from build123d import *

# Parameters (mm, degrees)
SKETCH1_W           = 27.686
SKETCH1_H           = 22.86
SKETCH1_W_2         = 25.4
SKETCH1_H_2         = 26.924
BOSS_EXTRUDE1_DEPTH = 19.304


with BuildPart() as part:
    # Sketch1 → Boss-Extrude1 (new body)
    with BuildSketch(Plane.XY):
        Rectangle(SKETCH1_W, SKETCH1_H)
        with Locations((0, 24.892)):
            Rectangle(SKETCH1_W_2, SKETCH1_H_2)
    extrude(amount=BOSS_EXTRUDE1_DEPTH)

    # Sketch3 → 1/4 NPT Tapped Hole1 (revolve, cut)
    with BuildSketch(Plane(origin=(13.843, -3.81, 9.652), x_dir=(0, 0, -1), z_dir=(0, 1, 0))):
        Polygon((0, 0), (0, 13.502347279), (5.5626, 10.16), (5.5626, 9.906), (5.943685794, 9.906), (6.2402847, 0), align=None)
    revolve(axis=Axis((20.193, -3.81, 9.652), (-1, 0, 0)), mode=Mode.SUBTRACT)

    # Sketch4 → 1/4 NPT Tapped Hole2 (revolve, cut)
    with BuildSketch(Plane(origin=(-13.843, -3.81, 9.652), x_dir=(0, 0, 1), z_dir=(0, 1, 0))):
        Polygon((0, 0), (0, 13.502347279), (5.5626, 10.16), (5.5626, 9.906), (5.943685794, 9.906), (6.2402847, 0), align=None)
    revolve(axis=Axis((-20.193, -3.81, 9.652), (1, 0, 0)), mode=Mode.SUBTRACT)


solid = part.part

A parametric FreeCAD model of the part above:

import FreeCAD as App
import Part
import Sketcher
from FreeCAD import Vector
Q = App.Units.Quantity

doc = App.newDocument("Part")
body = doc.addObject("PartDesign::Body", "Body")

sketch1 = body.newObject("Sketcher::SketchObject", "Sketch")
sketch1.AttachmentSupport = (doc.getObject("XY_Plane"), [""])
sketch1.MapMode = "FlatFace"
sketch1.addGeometry([
    Part.LineSegment(Vector(-13.8, 11.4, 0), Vector(-13.8, -11.4, 0)),
    Part.LineSegment(Vector(-13.8, -11.4, 0), Vector(13.8, -11.4, 0)),
    Part.LineSegment(Vector(13.8, -11.4, 0), Vector(13.8, 11.4, 0)),
    Part.LineSegment(Vector(13.8, 11.4, 0), Vector(12.7, 11.4, 0)),
    Part.LineSegment(Vector(12.7, 11.4, 0), Vector(12.7, 38.4, 0)),
    Part.LineSegment(Vector(12.7, 38.4, 0), Vector(-12.7, 38.4, 0)),
    Part.LineSegment(Vector(-12.7, 38.4, 0), Vector(-12.7, 11.4, 0)),
    Part.LineSegment(Vector(-12.7, 11.4, 0), Vector(-13.8, 11.4, 0)),
], False)
sketch1.addConstraint([
    Sketcher.Constraint("Coincident", 0, 2, 1, 1),
    Sketcher.Constraint("Coincident", 1, 2, 2, 1),
    Sketcher.Constraint("Coincident", 2, 2, 3, 1),
    Sketcher.Constraint("Coincident", 3, 2, 4, 1),
    Sketcher.Constraint("Coincident", 4, 2, 5, 1),
    Sketcher.Constraint("Coincident", 5, 2, 6, 1),
    Sketcher.Constraint("Coincident", 6, 2, 7, 1),
    Sketcher.Constraint("Coincident", 7, 2, 0, 1),
    Sketcher.Constraint("Vertical", 0),
    Sketcher.Constraint("Horizontal", 1),
    Sketcher.Constraint("Vertical", 2),
    Sketcher.Constraint("Horizontal", 3),
    Sketcher.Constraint("Vertical", 4),
    Sketcher.Constraint("Horizontal", 5),
    Sketcher.Constraint("Vertical", 6),
    Sketcher.Constraint("Horizontal", 7),
    Sketcher.Constraint("Symmetric", 0, 2, 2, 2, -1, 1),
    Sketcher.Constraint("Symmetric", 3, 2, 6, 2, -2),
    Sketcher.Constraint("DistanceX", 5, 2, 5, 1, Q("1 in")),
    Sketcher.Constraint("DistanceY", 0, 2, 0, 1, Q("0.9 in")),
    Sketcher.Constraint("DistanceX", 1, 1, 1, 2, Q("1.09 in")),
    Sketcher.Constraint("DistanceY", 4, 1, 4, 2, Q("1.06 in")),
])
pad1 = body.newObject("PartDesign::Pad", "Pad")
pad1.Profile = sketch1
pad1.Length = Q("0.76 in")

sketch2 = body.newObject("Sketcher::SketchObject", "Sketch001")
sketch2.AttachmentSupport = (doc.getObject("XZ_Plane"), [""])
sketch2.MapMode = "FlatFace"
sketch2.AttachmentOffset = App.Placement(Vector(0, 0, 0.15 * 25.4), App.Rotation())
sketch2.addGeometry([
    Part.LineSegment(Vector(0.34, 9.65, 0), Vector(13.84, 9.65, 0)),
    Part.LineSegment(Vector(13.84, 9.65, 0), Vector(13.84, 3.41, 0)),
    Part.LineSegment(Vector(13.84, 3.41, 0), Vector(3.94, 3.71, 0)),
    Part.LineSegment(Vector(3.94, 3.71, 0), Vector(3.94, 4.09, 0)),
    Part.LineSegment(Vector(3.94, 4.09, 0), Vector(3.68, 4.09, 0)),
    Part.LineSegment(Vector(3.68, 4.09, 0), Vector(0.34, 9.65, 0)),
], False)
sketch2.addGeometry(Part.LineSegment(Vector(13.84, 9.65, 0), Vector(0.34, 9.65, 0)), True)
sketch2.addConstraint([
    Sketcher.Constraint("Coincident", 0, 2, 1, 1),
    Sketcher.Constraint("Coincident", 1, 2, 2, 1),
    Sketcher.Constraint("Coincident", 2, 2, 3, 1),
    Sketcher.Constraint("Coincident", 3, 2, 4, 1),
    Sketcher.Constraint("Coincident", 4, 2, 5, 1),
    Sketcher.Constraint("Coincident", 5, 2, 0, 1),
    Sketcher.Constraint("Horizontal", 0),
    Sketcher.Constraint("Vertical", 1),
    Sketcher.Constraint("Vertical", 3),
    Sketcher.Constraint("Horizontal", 4),
    Sketcher.Constraint("Horizontal", 6),
    Sketcher.Constraint("Coincident", 6, 1, 0, 2),
    Sketcher.Constraint("Equal", 0, 6),
    Sketcher.Constraint("Angle", 5, Q("121 deg")),
    Sketcher.Constraint("DistanceX", 4, 2, 4, 1, Q("0.01 in")),
    Sketcher.Constraint("DistanceX", 4, 2, 1, 2, Q("0.4 in")),
    Sketcher.Constraint("DistanceY", -1, 1, 0, 2, Q("0.38 in")),
    Sketcher.Constraint("DistanceX", -1, 1, 0, 2, Q("0.545 in")),
    Sketcher.Constraint("DistanceY", -1, 1, 3, 2, Q("0.161 in")),
    Sketcher.Constraint("DistanceY", 1, 2, 2, 2, 0.296599),
    Sketcher.Constraint("DistanceY", 1, 2, 1, 1, 6.240285),
])
groove = body.newObject("PartDesign::Groove", "Groove")
groove.Profile = sketch2
groove.ReferenceAxis = (sketch2, ["Axis0"])
groove.Angle = 360

sketch3 = body.newObject("Sketcher::SketchObject", "Sketch002")
sketch3.AttachmentSupport = (doc.getObject("XZ_Plane"), [""])
sketch3.MapMode = "FlatFace"
sketch3.AttachmentOffset = App.Placement(Vector(0, 0, 0.15 * 25.4), App.Rotation())
sketch3.addGeometry([
    Part.LineSegment(Vector(-0.34, 9.65, 0), Vector(-13.84, 9.65, 0)),
    Part.LineSegment(Vector(-13.84, 9.65, 0), Vector(-13.84, 15.89, 0)),
    Part.LineSegment(Vector(-13.84, 15.89, 0), Vector(-3.94, 15.6, 0)),
    Part.LineSegment(Vector(-3.94, 15.6, 0), Vector(-3.94, 15.21, 0)),
    Part.LineSegment(Vector(-3.94, 15.21, 0), Vector(-3.68, 15.21, 0)),
    Part.LineSegment(Vector(-3.68, 15.21, 0), Vector(-0.34, 9.65, 0)),
], False)
sketch3.addGeometry(Part.LineSegment(Vector(-13.84, 9.65, 0), Vector(-0.34, 9.65, 0)), True)
sketch3.addConstraint([
    Sketcher.Constraint("Coincident", 0, 2, 1, 1),
    Sketcher.Constraint("Coincident", 1, 2, 2, 1),
    Sketcher.Constraint("Coincident", 2, 2, 3, 1),
    Sketcher.Constraint("Coincident", 3, 2, 4, 1),
    Sketcher.Constraint("Coincident", 4, 2, 5, 1),
    Sketcher.Constraint("Coincident", 5, 2, 0, 1),
    Sketcher.Constraint("Horizontal", 0),
    Sketcher.Constraint("Vertical", 1),
    Sketcher.Constraint("Vertical", 3),
    Sketcher.Constraint("Horizontal", 4),
    Sketcher.Constraint("Horizontal", 6),
    Sketcher.Constraint("Coincident", 6, 1, 0, 2),
    Sketcher.Constraint("Equal", 0, 6),
    Sketcher.Constraint("Angle", 5, Q("-59 deg")),
    Sketcher.Constraint("DistanceX", 4, 1, 4, 2, Q("0.01 in")),
    Sketcher.Constraint("DistanceX", 1, 2, 4, 2, Q("0.4 in")),
    Sketcher.Constraint("DistanceY", -1, 1, 0, 2, Q("0.38 in")),
    Sketcher.Constraint("DistanceX", 0, 2, -1, 1, Q("0.545 in")),
    Sketcher.Constraint("DistanceY", -1, 1, 3, 2, Q("0.599 in")),
    Sketcher.Constraint("DistanceY", 2, 2, 1, 2, 0.296599),
    Sketcher.Constraint("DistanceY", 1, 1, 1, 2, 6.240285),
])
groove2 = body.newObject("PartDesign::Groove", "Groove001")
groove2.Profile = sketch3
groove2.ReferenceAxis = (sketch3, ["Axis0"])
groove2.Angle = 360

doc.recompute()
